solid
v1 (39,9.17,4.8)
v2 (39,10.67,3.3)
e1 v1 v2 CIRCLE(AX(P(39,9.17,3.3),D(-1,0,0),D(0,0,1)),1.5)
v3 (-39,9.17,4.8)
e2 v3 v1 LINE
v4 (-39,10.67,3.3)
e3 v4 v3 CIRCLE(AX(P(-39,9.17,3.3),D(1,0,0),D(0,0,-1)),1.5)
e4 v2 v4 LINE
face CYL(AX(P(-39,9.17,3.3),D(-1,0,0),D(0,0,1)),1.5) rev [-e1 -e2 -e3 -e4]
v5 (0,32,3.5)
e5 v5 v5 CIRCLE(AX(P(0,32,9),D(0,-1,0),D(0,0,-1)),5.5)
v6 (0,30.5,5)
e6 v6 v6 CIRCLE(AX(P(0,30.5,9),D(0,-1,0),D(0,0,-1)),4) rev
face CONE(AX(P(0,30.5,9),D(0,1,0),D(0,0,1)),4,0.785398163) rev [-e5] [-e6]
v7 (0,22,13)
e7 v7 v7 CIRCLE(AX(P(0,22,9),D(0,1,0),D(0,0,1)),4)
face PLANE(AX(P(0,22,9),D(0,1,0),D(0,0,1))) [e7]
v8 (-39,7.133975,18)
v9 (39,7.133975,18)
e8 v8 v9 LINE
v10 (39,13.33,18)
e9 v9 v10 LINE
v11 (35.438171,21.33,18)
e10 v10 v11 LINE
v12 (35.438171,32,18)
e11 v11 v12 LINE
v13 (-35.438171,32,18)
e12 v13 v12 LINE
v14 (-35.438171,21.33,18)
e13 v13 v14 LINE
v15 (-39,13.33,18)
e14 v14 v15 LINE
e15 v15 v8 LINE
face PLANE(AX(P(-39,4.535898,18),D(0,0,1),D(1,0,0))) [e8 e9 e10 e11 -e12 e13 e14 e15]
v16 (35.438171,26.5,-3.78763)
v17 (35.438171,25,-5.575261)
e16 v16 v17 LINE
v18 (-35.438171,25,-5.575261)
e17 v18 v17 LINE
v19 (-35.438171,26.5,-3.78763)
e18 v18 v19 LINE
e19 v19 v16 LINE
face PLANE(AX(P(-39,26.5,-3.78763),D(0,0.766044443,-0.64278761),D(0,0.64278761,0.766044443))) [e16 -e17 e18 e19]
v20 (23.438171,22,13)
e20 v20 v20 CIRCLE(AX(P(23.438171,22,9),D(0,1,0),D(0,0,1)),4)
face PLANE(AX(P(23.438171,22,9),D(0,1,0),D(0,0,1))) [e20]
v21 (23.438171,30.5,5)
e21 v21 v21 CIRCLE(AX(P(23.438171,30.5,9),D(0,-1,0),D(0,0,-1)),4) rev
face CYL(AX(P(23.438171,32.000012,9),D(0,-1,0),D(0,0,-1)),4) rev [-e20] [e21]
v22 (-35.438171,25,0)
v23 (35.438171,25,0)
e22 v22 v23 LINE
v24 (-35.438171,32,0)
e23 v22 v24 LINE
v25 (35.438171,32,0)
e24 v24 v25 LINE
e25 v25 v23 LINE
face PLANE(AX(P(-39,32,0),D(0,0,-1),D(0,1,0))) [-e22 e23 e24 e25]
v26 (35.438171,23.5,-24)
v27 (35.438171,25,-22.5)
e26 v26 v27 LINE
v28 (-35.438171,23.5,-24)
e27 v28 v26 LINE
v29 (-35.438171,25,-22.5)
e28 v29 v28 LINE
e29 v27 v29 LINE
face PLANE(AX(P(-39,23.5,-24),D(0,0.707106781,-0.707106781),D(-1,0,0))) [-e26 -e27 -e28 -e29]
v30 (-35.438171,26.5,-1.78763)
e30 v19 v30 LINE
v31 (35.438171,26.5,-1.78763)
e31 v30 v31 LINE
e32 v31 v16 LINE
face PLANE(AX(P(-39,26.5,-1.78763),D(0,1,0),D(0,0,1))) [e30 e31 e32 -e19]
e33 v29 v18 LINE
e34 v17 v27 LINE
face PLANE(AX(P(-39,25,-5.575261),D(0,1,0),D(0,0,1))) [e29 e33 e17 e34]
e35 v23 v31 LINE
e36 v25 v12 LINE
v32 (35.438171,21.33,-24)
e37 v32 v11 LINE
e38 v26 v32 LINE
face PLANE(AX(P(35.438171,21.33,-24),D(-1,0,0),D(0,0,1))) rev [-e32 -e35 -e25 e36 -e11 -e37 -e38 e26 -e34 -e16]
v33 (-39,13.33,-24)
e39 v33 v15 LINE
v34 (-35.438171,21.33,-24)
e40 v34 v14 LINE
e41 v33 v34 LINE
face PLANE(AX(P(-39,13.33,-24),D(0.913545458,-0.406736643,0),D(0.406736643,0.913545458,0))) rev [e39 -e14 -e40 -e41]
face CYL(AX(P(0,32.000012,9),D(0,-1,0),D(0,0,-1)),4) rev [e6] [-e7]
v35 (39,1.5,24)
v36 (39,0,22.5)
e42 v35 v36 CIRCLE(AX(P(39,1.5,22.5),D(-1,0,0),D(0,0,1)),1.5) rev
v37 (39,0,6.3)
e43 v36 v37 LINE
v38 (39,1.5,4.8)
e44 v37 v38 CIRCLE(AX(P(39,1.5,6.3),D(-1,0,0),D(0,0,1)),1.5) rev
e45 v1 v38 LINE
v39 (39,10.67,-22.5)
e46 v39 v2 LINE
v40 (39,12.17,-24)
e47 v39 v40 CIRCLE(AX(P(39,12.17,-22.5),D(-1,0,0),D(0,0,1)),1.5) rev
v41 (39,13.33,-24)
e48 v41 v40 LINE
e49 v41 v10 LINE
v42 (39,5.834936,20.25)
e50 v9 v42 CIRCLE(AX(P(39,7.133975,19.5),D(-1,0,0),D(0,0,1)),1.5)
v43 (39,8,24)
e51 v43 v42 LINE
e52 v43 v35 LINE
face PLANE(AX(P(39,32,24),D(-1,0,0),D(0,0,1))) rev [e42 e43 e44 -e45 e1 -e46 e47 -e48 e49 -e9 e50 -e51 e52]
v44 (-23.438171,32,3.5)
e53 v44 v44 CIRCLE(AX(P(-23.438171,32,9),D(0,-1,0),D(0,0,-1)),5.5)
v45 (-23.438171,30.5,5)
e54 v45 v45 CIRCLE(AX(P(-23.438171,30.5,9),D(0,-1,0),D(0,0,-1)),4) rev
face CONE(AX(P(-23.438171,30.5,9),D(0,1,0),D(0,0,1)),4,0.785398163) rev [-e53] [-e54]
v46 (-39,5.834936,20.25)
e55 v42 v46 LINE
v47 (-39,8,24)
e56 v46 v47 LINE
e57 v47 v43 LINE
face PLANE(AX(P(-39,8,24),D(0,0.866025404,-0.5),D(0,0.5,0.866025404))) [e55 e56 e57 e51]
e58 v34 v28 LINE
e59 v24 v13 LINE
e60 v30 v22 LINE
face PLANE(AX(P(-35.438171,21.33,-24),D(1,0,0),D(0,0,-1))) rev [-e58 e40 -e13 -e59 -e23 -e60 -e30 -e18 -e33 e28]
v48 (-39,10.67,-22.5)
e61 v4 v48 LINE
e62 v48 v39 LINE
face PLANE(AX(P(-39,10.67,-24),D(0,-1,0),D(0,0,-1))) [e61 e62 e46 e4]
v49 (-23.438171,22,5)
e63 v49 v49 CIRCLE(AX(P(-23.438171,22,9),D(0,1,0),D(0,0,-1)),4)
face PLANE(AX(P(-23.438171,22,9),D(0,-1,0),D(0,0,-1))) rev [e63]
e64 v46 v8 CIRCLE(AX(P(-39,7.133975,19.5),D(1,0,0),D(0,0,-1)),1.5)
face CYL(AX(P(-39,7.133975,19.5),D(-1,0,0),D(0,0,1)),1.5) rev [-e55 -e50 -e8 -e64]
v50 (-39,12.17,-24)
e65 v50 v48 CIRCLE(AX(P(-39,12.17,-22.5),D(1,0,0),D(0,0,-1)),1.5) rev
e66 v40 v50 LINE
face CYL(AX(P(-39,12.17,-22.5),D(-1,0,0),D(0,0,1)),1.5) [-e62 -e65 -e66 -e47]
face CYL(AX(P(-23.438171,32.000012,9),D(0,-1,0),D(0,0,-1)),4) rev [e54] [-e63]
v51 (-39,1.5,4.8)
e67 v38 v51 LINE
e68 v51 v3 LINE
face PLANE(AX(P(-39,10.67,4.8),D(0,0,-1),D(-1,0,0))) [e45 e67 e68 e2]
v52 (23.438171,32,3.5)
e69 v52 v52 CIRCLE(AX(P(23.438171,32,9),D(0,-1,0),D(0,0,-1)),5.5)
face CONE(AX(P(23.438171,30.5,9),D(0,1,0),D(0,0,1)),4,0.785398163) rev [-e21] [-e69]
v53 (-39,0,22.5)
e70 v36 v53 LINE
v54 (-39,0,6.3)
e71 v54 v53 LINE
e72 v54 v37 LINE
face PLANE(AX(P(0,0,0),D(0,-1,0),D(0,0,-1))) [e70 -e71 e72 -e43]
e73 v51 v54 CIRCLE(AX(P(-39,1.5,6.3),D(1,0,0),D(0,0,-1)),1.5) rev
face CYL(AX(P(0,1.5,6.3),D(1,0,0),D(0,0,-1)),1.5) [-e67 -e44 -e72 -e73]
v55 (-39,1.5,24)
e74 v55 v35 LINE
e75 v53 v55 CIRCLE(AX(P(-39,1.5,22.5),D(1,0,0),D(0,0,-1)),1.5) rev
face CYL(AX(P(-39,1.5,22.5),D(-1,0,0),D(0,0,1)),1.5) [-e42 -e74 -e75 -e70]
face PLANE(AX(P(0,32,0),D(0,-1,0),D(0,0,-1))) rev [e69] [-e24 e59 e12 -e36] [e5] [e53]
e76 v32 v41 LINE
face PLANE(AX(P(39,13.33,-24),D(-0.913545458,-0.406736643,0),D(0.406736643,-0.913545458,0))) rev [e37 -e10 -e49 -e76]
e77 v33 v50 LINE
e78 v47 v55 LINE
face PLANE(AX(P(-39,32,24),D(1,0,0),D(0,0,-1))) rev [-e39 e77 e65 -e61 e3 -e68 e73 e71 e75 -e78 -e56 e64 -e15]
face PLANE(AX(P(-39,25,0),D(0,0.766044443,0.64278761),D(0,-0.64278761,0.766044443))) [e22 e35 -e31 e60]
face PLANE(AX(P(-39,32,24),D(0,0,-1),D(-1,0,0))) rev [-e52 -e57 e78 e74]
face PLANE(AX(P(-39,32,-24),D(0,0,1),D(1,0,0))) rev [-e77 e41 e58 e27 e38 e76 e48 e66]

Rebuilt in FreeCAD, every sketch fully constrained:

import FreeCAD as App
import Part
import Sketcher
Q = App.Units.Quantity


def edges_at(feature, points):
    """Names of the edges that pass closest to the given points."""
    edges = feature.Shape.Edges
    near = lambda p: min(range(len(edges)), key=lambda i: edges[i].distToShape(Part.Vertex(*p))[0])
    return sorted({f"Edge{near(p) + 1}" for p in points})


def add_polygon(sketch, points):
    """Adds a closed chain of lines whose ends are joined by coincident constraints."""
    first, n = sketch.GeometryCount, len(points)
    for a, b in zip(points, points[1:] + points[:1]):
        sketch.addGeometry(Part.LineSegment(App.Vector(*a, 0), App.Vector(*b, 0)), False)
    for i in range(n):
        sketch.addConstraint(Sketcher.Constraint("Coincident", first + i, 2, first + (i + 1) % n, 1))

doc = App.newDocument("Part")
body = doc.addObject("PartDesign::Body", "Body")

# Sketch on XZ plane
sketch1 = body.newObject("Sketcher::SketchObject", "Sketch")
sketch1.AttachmentSupport = (doc.getObject("XZ_Plane"), [""])
sketch1.MapMode = "FlatFace"
add_polygon(sketch1, [(-39, -24), (-39, 24), (39, 24), (39, -24)])  # lines 0-3
sketch1.addConstraint([
    Sketcher.Constraint("Vertical", 0),
    Sketcher.Constraint("Horizontal", 1),
    Sketcher.Constraint("Vertical", 2),
    Sketcher.Constraint("Horizontal", 3),
    Sketcher.Constraint("Symmetric", 0, 2, 2, 2, -1, 1),
    Sketcher.Constraint("DistanceX", 1, 1, 1, 2, 78.0),
    Sketcher.Constraint("DistanceY", 0, 1, 0, 2, 48.0),
])
pad1 = body.newObject("PartDesign::Pad", "Pad")
pad1.Profile = sketch1
pad1.Length = 32
pad1.Reversed = True

# Sketch on XY plane
sketch2 = body.newObject("Sketcher::SketchObject", "Sketch001")
sketch2.AttachmentSupport = (doc.getObject("XY_Plane"), [""])
sketch2.MapMode = "FlatFace"
sketch2.AttachmentOffset = App.Placement(App.Vector(0, 0, 24), App.Rotation())
add_polygon(sketch2, [(-39, 13.3), (-35.4, 21.3), (-35.4, 32), (-39, 32)])  # lines 0-3
add_polygon(sketch2, [(35.4, 32), (35.4, 21.3), (39, 13.3), (39, 32)])  # lines 4-7
sketch2.addConstraint([
    Sketcher.Constraint("Vertical", 1),
    Sketcher.Constraint("Horizontal", 2),
    Sketcher.Constraint("Vertical", 3),
    Sketcher.Constraint("Vertical", 4),
    Sketcher.Constraint("Vertical", 6),
    Sketcher.Constraint("Horizontal", 7),
    Sketcher.Constraint("Symmetric", 0, 2, 4, 2, -2),
    Sketcher.Constraint("Symmetric", 3, 2, 5, 2, -2),
    Sketcher.Constraint("Horizontal", 2, 2, 6, 2),
    Sketcher.Constraint("Angle", 0, Q("66 deg")),
    Sketcher.Constraint("DistanceY", -1, 1, 1, 2, 32.0),
    Sketcher.Constraint("DistanceX", 2, 2, -1, 1, 39.0),
    Sketcher.Constraint("DistanceY", 3, 2, 0, 2, 8.0),
    Sketcher.Constraint("DistanceY", 1, 1, 1, 2, 10.67),
])
pocket1 = body.newObject("PartDesign::Pocket", "Pocket")
pocket1.Profile = sketch2
pocket1.Type = "ThroughAll"
pocket1.Midplane = True

# Sketch on YZ plane
sketch3 = body.newObject("Sketcher::SketchObject", "Sketch002")
sketch3.AttachmentSupport = (doc.getObject("YZ_Plane"), [""])
sketch3.MapMode = "FlatFace"
sketch3.AttachmentOffset = App.Placement(App.Vector(0, 0, 39), App.Rotation())
add_polygon(sketch3, [(42.7, 34.7), (-10.7, 34.7), (-10.7, -34.7), (42.7, -34.7)])  # lines 0-3
add_polygon(sketch3, [(0, 24), (8, 24), (4.5, 18), (32, 18), (32, 0), (25, 0), (26.5, -1.8), (26.5, -3.8), (25, -5.6), (25, -24), (10.7, -24), (10.7, 4.8), (0, 4.8)])  # lines 4-16
sketch3.addConstraint([
    Sketcher.Constraint("Horizontal", 0),
    Sketcher.Constraint("Vertical", 1),
    Sketcher.Constraint("Horizontal", 2),
    Sketcher.Constraint("Vertical", 3),
    Sketcher.Constraint("Horizontal", 4),
    Sketcher.Constraint("Horizontal", 6),
    Sketcher.Constraint("Vertical", 7),
    Sketcher.Constraint("Horizontal", 8),
    Sketcher.Constraint("Vertical", 10),
    Sketcher.Constraint("Vertical", 12),
    Sketcher.Constraint("Horizontal", 13),
    Sketcher.Constraint("Vertical", 14),
    Sketcher.Constraint("Horizontal", 15),
    Sketcher.Constraint("Vertical", 16),
    Sketcher.Constraint("PointOnObject", 7, 2, -1),
    Sketcher.Constraint("PointOnObject", 15, 2, -2),
    Sketcher.Constraint("Vertical", 8, 2, 11, 2),
    Sketcher.Constraint("Equal", 9, 11),
    Sketcher.Constraint("DistanceX", 4, 1, 4, 2, 8.0),
    Sketcher.Constraint("DistanceX", 8, 2, 8, 1, 7.0),
    Sketcher.Constraint("DistanceY", 7, 2, 7, 1, 18.0),
    Sketcher.Constraint("DistanceY", 10, 2, 10, 1, 2.0),
    Sketcher.Constraint("Angle", 5, Q("-120 deg")),
    Sketcher.Constraint("Angle", 9, Q("-50 deg")),
    Sketcher.Constraint("DistanceY", 14, 1, 14, 2, 28.8),
    Sketcher.Constraint("DistanceY", 16, 1, 16, 2, 19.2),
    Sketcher.Constraint("DistanceY", -1, 1, 4, 2, 24.0),
    Sketcher.Constraint("DistanceX", -1, 1, 6, 2, 32.0),
    Sketcher.Constraint("DistanceX", 13, 2, 13, 1, 14.33),
    Sketcher.Constraint("DistanceX", -1, 1, 9, 2, 26.5),
    Sketcher.Constraint("DistanceX", 0, 2, 0, 1, 53.404),
    Sketcher.Constraint("DistanceY", 1, 2, 1, 1, 69.404),
    Sketcher.Constraint("DistanceX", 0, 2, -1, 1, 10.702),
    Sketcher.Constraint("DistanceY", -1, 1, 0, 2, 34.702),
])
pocket2 = body.newObject("PartDesign::Pocket", "Pocket001")
pocket2.Profile = sketch3
pocket2.Type = "ThroughAll"
pocket2.Midplane = True
doc.recompute()

fillet = body.newObject("PartDesign::Fillet", "Fillet")
fillet.Base = (pocket2, edges_at(pocket2, [
    (0, 0, 24),
    (0, 10.67, 4.8),
    (0, 4.536, 18),
    (0, 0, 4.8),
    (0, 10.67, -24),
]))
fillet.Radius = 1.5

# Sketch on XZ plane
sketch4 = body.newObject("Sketcher::SketchObject", "Sketch003")
sketch4.AttachmentSupport = (doc.getObject("XZ_Plane"), [""])
sketch4.MapMode = "FlatFace"
sketch4.AttachmentOffset = App.Placement(App.Vector(0, 0, -32), App.Rotation())
sketch4.addGeometry([
    Part.Circle(App.Vector(0, 9, 0), App.Vector(0, 0, 1), 4),
    Part.Circle(App.Vector(23.4, 9, 0), App.Vector(0, 0, 1), 4),
    Part.Circle(App.Vector(-23.4, 9, 0), App.Vector(0, 0, 1), 4),
], False)
sketch4.addConstraint([
    Sketcher.Constraint("Equal", 0, 1),
    Sketcher.Constraint("Equal", 1, 2),
    Sketcher.Constraint("Symmetric", 1, 3, 2, 3, -2),
    Sketcher.Constraint("PointOnObject", 0, 3, -2),
    Sketcher.Constraint("Horizontal", 0, 3, 1, 3),
    Sketcher.Constraint("Diameter", 0, 8.0),
    Sketcher.Constraint("DistanceY", -1, 1, 0, 3, 9.0),
    Sketcher.Constraint("DistanceX", -1, 1, 1, 3, 23.438171),
])
pocket3 = body.newObject("PartDesign::Pocket", "Pocket002")
pocket3.Profile = sketch4
pocket3.Type = "TwoLengths"
pocket3.Length = 1
pocket3.Length2 = 10
doc.recompute()

chamfer = body.newObject("PartDesign::Chamfer", "Chamfer")
chamfer.Base = (pocket3, edges_at(pocket3, [
    (-27.438, 32, 9),
    (19.438, 32, 9),
    (-4, 32, 9),
    (0, 25, -24),
]))
chamfer.Size = 1.5

doc.recompute()
